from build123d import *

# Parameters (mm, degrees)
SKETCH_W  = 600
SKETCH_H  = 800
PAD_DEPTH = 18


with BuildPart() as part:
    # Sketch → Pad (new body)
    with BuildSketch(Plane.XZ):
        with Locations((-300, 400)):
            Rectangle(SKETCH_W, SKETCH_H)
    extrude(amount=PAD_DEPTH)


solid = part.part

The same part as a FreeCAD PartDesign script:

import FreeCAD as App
import Part
import Sketcher
from FreeCAD import Vector
Q = App.Units.Quantity

doc = App.newDocument("Part")
body = doc.addObject("PartDesign::Body", "Body")

# Sketch on XZ plane
sketch1 = doc.addObject("Sketcher::SketchObject", "Sketch")
body.addObject(sketch1)
sketch1.AttachmentSupport = (doc.XZ_Plane, [""])
sketch1.MapMode = "FlatFace"
sketch1.addGeometry([
    Part.LineSegment(Vector(-600, 800, 0), Vector(-600, 0, 0)),
    Part.LineSegment(Vector(-600, 0, 0), Vector(0, 0, 0)),
    Part.LineSegment(Vector(0, 0, 0), Vector(0, 800, 0)),
    Part.LineSegment(Vector(0, 800, 0), Vector(-600, 800, 0)),
], False)
sketch1.addConstraint([
    Sketcher.Constraint("Coincident", 0, 2, 1, 1),
    Sketcher.Constraint("Coincident", 1, 2, 2, 1),
    Sketcher.Constraint("Coincident", 2, 2, 3, 1),
    Sketcher.Constraint("Coincident", 3, 2, 0, 1),
    Sketcher.Constraint("Vertical", 0),
    Sketcher.Constraint("Horizontal", 1),
    Sketcher.Constraint("Vertical", 2),
    Sketcher.Constraint("Horizontal", 3),
    Sketcher.Constraint("Coincident", 1, 2, -1, 1),
    Sketcher.Constraint("DistanceX", 1, 1, 1, 2, Q("600 mm")),
    Sketcher.Constraint("DistanceY", 0, 2, 0, 1, Q("800 mm")),
])
pad1 = doc.addObject("PartDesign::Pad", "Pad")
body.addObject(pad1)
pad1.Profile = sketch1
pad1.Length = 18

doc.recompute()
